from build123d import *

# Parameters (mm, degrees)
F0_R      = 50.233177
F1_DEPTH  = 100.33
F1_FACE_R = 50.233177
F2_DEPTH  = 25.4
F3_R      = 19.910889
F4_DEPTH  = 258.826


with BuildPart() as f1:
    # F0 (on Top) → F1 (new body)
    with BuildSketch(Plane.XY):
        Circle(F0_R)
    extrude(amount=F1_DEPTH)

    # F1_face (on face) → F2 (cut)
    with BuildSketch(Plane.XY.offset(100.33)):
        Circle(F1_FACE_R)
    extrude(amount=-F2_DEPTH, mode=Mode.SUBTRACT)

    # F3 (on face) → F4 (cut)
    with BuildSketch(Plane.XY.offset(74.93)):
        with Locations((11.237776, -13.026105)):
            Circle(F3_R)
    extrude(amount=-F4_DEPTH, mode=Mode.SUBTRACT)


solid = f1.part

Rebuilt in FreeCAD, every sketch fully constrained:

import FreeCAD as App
import Part
import Sketcher
Q = App.Units.Quantity

doc = App.newDocument("Part")
body = doc.addObject("PartDesign::Body", "Body")

# Sketch on XY plane
sketch1 = body.newObject("Sketcher::SketchObject", "Sketch")
sketch1.AttachmentSupport = (doc.getObject("XY_Plane"), [""])
sketch1.MapMode = "FlatFace"
sketch1.addGeometry(Part.Circle(App.Vector(0, 0, 0), App.Vector(0, 0, 1), 50.233177), False)
sketch1.addConstraint(Sketcher.Constraint("Coincident", 0, 3, -1, 1))
sketch1.addConstraint(Sketcher.Constraint("Diameter", 0, 100.466354))
pad1 = body.newObject("PartDesign::Pad", "Pad")
pad1.Profile = sketch1
pad1.Length = Q("3.95 in")

# Sketch on XY plane
sketch2 = body.newObject("Sketcher::SketchObject", "Sketch001")
sketch2.AttachmentSupport = (doc.getObject("XY_Plane"), [""])
sketch2.MapMode = "FlatFace"
sketch2.AttachmentOffset = App.Placement(App.Vector(0, 0, 3.95 * 25.4), App.Rotation())
sketch2.addGeometry(Part.Circle(App.Vector(0, 0, 0), App.Vector(0, 0, 1), 50.233177), False)
sketch2.addConstraint(Sketcher.Constraint("Coincident", 0, 3, -1, 1))
sketch2.addConstraint(Sketcher.Constraint("Diameter", 0, 100.466354))
pocket1 = body.newObject("PartDesign::Pocket", "Pocket")
pocket1.Profile = sketch2
pocket1.Length = Q("1 in")

# Sketch on XY plane
sketch3 = body.newObject("Sketcher::SketchObject", "Sketch002")
sketch3.AttachmentSupport = (doc.getObject("XY_Plane"), [""])
sketch3.MapMode = "FlatFace"
sketch3.AttachmentOffset = App.Placement(App.Vector(0, 0, 2.95 * 25.4), App.Rotation())
sketch3.addGeometry(Part.Circle(App.Vector(11.237776, -13.026105, 0), App.Vector(0, 0, 1), 19.910889), False)
sketch3.addConstraint(Sketcher.Constraint("Diameter", 0, 39.821778))
sketch3.addConstraint(Sketcher.Constraint("DistanceX", -1, 1, 0, 3, 11.237776))
sketch3.addConstraint(Sketcher.Constraint("DistanceY", 0, 3, -1, 1, 13.026105))
pocket2 = body.newObject("PartDesign::Pocket", "Pocket001")
pocket2.Profile = sketch3
pocket2.Length = Q("10.19 in")

doc.recompute()
